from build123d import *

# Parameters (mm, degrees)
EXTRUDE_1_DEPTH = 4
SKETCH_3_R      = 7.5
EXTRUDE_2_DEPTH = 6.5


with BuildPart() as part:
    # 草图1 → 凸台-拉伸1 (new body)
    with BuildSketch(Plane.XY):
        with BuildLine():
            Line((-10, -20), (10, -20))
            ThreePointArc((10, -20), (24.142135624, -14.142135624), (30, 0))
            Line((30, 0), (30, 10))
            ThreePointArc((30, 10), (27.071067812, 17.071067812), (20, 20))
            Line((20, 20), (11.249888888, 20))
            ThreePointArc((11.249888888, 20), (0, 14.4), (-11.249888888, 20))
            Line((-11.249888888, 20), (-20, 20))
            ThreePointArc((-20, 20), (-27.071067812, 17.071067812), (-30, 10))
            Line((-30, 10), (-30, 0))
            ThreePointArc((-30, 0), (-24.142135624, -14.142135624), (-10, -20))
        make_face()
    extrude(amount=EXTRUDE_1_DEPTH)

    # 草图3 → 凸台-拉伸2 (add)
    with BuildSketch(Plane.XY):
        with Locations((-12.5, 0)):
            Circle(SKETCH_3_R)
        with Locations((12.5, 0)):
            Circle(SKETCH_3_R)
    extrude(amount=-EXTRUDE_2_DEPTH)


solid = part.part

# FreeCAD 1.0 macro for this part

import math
import FreeCAD as App
import Part
import Sketcher
from FreeCAD import Vector
Q = App.Units.Quantity

doc = App.newDocument("Part")
body = doc.addObject("PartDesign::Body", "Body")

# Sketch on XY plane
sketch1 = body.newObject("Sketcher::SketchObject", "Sketch")
sketch1.AttachmentSupport = (doc.getObject("XY_Plane"), [""])
sketch1.MapMode = "FlatFace"
sketch1.addGeometry(Part.LineSegment(Vector(-10, -20, 0), Vector(10, -20, 0)), False)
sketch1.addGeometry(Part.ArcOfCircle(Part.Circle(Vector(10, 0, 0), Vector(0, 0, 1), 20), math.radians(-90), math.radians(0)), False)
sketch1.addGeometry(Part.LineSegment(Vector(30, 0, 0), Vector(30, 10, 0)), False)
sketch1.addGeometry(Part.ArcOfCircle(Part.Circle(Vector(20, 10, 0), Vector(0, 0, 1), 10), math.radians(0), math.radians(90)), False)
sketch1.addGeometry(Part.LineSegment(Vector(20, 20, 0), Vector(11, 20, 0)), False)
sketch1.addGeometry(Part.ArcOfCircle(Part.Circle(Vector(0, 28, 0), Vector(0, 0, 1), 14), math.radians(-143), math.radians(-37)), False)
sketch1.addGeometry(Part.LineSegment(Vector(-11, 20, 0), Vector(-20, 20, 0)), False)
sketch1.addGeometry(Part.ArcOfCircle(Part.Circle(Vector(-20, 10, 0), Vector(0, 0, 1), 10), math.radians(90), math.radians(180)), False)
sketch1.addGeometry(Part.LineSegment(Vector(-30, 10, 0), Vector(-30, 0, 0)), False)
sketch1.addGeometry(Part.ArcOfCircle(Part.Circle(Vector(-10, 0, 0), Vector(0, 0, 1), 20), math.radians(180), math.radians(270)), False)
sketch1.addConstraint(Sketcher.Constraint("Tangent", 0, 2, 1, 1))
sketch1.addConstraint(Sketcher.Constraint("Tangent", 1, 2, 2, 1))
sketch1.addConstraint(Sketcher.Constraint("Tangent", 2, 2, 3, 1))
sketch1.addConstraint(Sketcher.Constraint("Tangent", 3, 2, 4, 1))
sketch1.addConstraint(Sketcher.Constraint("Coincident", 4, 2, 5, 2))
sketch1.addConstraint(Sketcher.Constraint("Coincident", 5, 1, 6, 1))
sketch1.addConstraint(Sketcher.Constraint("Tangent", 6, 2, 7, 1))
sketch1.addConstraint(Sketcher.Constraint("Tangent", 7, 2, 8, 1))
sketch1.addConstraint(Sketcher.Constraint("Tangent", 8, 2, 9, 1))
sketch1.addConstraint(Sketcher.Constraint("Tangent", 9, 2, 0, 1))
sketch1.addConstraint(Sketcher.Constraint("Horizontal", 0))
sketch1.addConstraint(Sketcher.Constraint("Vertical", 2))
sketch1.addConstraint(Sketcher.Constraint("Horizontal", 4))
sketch1.addConstraint(Sketcher.Constraint("Horizontal", 6))
sketch1.addConstraint(Sketcher.Constraint("Vertical", 8))
sketch1.addConstraint(Sketcher.Constraint("Equal", 3, 7))
sketch1.addConstraint(Sketcher.Constraint("Equal", 1, 9))
sketch1.addConstraint(Sketcher.Constraint("Symmetric", 1, 3, 9, 3, -1, 1))
sketch1.addConstraint(Sketcher.Constraint("Symmetric", 4, 2, 5, 1, -2))
sketch1.addConstraint(Sketcher.Constraint("Radius", 1, Q("20 mm")))
sketch1.addConstraint(Sketcher.Constraint("Radius", 3, Q("10 mm")))
sketch1.addConstraint(Sketcher.Constraint("Radius", 5, Q("14.1 mm")))
sketch1.addConstraint(Sketcher.Constraint("DistanceX", 0, 1, 0, 2, Q("20 mm")))
sketch1.addConstraint(Sketcher.Constraint("DistanceY", 2, 1, 2, 2, Q("10 mm")))
sketch1.addConstraint(Sketcher.Constraint("DistanceY", -1, 1, 5, 3, Q("28.5 mm")))
pad1 = body.newObject("PartDesign::Pad", "Pad")
pad1.Profile = sketch1
pad1.Length = 4

# Sketch on XY plane
sketch2 = body.newObject("Sketcher::SketchObject", "Sketch001")
sketch2.AttachmentSupport = (doc.getObject("XY_Plane"), [""])
sketch2.MapMode = "FlatFace"
sketch2.addGeometry(Part.Circle(Vector(-12, 0, 0), Vector(0, 0, 1), 8), False)
sketch2.addGeometry(Part.Circle(Vector(12, 0, 0), Vector(0, 0, 1), 8), False)
sketch2.addConstraint(Sketcher.Constraint("Equal", 0, 1))
sketch2.addConstraint(Sketcher.Constraint("Symmetric", 0, 3, 1, 3, -1, 1))
sketch2.addConstraint(Sketcher.Constraint("PointOnObject", 0, 3, -1))
sketch2.addConstraint(Sketcher.Constraint("Diameter", 0, Q("15 mm")))
sketch2.addConstraint(Sketcher.Constraint("DistanceX", 0, 3, 1, 3, Q("25 mm")))
pad2 = body.newObject("PartDesign::Pad", "Pad001")
pad2.Profile = sketch2
pad2.Length = 6.5
pad2.Reversed = True

doc.recompute()
